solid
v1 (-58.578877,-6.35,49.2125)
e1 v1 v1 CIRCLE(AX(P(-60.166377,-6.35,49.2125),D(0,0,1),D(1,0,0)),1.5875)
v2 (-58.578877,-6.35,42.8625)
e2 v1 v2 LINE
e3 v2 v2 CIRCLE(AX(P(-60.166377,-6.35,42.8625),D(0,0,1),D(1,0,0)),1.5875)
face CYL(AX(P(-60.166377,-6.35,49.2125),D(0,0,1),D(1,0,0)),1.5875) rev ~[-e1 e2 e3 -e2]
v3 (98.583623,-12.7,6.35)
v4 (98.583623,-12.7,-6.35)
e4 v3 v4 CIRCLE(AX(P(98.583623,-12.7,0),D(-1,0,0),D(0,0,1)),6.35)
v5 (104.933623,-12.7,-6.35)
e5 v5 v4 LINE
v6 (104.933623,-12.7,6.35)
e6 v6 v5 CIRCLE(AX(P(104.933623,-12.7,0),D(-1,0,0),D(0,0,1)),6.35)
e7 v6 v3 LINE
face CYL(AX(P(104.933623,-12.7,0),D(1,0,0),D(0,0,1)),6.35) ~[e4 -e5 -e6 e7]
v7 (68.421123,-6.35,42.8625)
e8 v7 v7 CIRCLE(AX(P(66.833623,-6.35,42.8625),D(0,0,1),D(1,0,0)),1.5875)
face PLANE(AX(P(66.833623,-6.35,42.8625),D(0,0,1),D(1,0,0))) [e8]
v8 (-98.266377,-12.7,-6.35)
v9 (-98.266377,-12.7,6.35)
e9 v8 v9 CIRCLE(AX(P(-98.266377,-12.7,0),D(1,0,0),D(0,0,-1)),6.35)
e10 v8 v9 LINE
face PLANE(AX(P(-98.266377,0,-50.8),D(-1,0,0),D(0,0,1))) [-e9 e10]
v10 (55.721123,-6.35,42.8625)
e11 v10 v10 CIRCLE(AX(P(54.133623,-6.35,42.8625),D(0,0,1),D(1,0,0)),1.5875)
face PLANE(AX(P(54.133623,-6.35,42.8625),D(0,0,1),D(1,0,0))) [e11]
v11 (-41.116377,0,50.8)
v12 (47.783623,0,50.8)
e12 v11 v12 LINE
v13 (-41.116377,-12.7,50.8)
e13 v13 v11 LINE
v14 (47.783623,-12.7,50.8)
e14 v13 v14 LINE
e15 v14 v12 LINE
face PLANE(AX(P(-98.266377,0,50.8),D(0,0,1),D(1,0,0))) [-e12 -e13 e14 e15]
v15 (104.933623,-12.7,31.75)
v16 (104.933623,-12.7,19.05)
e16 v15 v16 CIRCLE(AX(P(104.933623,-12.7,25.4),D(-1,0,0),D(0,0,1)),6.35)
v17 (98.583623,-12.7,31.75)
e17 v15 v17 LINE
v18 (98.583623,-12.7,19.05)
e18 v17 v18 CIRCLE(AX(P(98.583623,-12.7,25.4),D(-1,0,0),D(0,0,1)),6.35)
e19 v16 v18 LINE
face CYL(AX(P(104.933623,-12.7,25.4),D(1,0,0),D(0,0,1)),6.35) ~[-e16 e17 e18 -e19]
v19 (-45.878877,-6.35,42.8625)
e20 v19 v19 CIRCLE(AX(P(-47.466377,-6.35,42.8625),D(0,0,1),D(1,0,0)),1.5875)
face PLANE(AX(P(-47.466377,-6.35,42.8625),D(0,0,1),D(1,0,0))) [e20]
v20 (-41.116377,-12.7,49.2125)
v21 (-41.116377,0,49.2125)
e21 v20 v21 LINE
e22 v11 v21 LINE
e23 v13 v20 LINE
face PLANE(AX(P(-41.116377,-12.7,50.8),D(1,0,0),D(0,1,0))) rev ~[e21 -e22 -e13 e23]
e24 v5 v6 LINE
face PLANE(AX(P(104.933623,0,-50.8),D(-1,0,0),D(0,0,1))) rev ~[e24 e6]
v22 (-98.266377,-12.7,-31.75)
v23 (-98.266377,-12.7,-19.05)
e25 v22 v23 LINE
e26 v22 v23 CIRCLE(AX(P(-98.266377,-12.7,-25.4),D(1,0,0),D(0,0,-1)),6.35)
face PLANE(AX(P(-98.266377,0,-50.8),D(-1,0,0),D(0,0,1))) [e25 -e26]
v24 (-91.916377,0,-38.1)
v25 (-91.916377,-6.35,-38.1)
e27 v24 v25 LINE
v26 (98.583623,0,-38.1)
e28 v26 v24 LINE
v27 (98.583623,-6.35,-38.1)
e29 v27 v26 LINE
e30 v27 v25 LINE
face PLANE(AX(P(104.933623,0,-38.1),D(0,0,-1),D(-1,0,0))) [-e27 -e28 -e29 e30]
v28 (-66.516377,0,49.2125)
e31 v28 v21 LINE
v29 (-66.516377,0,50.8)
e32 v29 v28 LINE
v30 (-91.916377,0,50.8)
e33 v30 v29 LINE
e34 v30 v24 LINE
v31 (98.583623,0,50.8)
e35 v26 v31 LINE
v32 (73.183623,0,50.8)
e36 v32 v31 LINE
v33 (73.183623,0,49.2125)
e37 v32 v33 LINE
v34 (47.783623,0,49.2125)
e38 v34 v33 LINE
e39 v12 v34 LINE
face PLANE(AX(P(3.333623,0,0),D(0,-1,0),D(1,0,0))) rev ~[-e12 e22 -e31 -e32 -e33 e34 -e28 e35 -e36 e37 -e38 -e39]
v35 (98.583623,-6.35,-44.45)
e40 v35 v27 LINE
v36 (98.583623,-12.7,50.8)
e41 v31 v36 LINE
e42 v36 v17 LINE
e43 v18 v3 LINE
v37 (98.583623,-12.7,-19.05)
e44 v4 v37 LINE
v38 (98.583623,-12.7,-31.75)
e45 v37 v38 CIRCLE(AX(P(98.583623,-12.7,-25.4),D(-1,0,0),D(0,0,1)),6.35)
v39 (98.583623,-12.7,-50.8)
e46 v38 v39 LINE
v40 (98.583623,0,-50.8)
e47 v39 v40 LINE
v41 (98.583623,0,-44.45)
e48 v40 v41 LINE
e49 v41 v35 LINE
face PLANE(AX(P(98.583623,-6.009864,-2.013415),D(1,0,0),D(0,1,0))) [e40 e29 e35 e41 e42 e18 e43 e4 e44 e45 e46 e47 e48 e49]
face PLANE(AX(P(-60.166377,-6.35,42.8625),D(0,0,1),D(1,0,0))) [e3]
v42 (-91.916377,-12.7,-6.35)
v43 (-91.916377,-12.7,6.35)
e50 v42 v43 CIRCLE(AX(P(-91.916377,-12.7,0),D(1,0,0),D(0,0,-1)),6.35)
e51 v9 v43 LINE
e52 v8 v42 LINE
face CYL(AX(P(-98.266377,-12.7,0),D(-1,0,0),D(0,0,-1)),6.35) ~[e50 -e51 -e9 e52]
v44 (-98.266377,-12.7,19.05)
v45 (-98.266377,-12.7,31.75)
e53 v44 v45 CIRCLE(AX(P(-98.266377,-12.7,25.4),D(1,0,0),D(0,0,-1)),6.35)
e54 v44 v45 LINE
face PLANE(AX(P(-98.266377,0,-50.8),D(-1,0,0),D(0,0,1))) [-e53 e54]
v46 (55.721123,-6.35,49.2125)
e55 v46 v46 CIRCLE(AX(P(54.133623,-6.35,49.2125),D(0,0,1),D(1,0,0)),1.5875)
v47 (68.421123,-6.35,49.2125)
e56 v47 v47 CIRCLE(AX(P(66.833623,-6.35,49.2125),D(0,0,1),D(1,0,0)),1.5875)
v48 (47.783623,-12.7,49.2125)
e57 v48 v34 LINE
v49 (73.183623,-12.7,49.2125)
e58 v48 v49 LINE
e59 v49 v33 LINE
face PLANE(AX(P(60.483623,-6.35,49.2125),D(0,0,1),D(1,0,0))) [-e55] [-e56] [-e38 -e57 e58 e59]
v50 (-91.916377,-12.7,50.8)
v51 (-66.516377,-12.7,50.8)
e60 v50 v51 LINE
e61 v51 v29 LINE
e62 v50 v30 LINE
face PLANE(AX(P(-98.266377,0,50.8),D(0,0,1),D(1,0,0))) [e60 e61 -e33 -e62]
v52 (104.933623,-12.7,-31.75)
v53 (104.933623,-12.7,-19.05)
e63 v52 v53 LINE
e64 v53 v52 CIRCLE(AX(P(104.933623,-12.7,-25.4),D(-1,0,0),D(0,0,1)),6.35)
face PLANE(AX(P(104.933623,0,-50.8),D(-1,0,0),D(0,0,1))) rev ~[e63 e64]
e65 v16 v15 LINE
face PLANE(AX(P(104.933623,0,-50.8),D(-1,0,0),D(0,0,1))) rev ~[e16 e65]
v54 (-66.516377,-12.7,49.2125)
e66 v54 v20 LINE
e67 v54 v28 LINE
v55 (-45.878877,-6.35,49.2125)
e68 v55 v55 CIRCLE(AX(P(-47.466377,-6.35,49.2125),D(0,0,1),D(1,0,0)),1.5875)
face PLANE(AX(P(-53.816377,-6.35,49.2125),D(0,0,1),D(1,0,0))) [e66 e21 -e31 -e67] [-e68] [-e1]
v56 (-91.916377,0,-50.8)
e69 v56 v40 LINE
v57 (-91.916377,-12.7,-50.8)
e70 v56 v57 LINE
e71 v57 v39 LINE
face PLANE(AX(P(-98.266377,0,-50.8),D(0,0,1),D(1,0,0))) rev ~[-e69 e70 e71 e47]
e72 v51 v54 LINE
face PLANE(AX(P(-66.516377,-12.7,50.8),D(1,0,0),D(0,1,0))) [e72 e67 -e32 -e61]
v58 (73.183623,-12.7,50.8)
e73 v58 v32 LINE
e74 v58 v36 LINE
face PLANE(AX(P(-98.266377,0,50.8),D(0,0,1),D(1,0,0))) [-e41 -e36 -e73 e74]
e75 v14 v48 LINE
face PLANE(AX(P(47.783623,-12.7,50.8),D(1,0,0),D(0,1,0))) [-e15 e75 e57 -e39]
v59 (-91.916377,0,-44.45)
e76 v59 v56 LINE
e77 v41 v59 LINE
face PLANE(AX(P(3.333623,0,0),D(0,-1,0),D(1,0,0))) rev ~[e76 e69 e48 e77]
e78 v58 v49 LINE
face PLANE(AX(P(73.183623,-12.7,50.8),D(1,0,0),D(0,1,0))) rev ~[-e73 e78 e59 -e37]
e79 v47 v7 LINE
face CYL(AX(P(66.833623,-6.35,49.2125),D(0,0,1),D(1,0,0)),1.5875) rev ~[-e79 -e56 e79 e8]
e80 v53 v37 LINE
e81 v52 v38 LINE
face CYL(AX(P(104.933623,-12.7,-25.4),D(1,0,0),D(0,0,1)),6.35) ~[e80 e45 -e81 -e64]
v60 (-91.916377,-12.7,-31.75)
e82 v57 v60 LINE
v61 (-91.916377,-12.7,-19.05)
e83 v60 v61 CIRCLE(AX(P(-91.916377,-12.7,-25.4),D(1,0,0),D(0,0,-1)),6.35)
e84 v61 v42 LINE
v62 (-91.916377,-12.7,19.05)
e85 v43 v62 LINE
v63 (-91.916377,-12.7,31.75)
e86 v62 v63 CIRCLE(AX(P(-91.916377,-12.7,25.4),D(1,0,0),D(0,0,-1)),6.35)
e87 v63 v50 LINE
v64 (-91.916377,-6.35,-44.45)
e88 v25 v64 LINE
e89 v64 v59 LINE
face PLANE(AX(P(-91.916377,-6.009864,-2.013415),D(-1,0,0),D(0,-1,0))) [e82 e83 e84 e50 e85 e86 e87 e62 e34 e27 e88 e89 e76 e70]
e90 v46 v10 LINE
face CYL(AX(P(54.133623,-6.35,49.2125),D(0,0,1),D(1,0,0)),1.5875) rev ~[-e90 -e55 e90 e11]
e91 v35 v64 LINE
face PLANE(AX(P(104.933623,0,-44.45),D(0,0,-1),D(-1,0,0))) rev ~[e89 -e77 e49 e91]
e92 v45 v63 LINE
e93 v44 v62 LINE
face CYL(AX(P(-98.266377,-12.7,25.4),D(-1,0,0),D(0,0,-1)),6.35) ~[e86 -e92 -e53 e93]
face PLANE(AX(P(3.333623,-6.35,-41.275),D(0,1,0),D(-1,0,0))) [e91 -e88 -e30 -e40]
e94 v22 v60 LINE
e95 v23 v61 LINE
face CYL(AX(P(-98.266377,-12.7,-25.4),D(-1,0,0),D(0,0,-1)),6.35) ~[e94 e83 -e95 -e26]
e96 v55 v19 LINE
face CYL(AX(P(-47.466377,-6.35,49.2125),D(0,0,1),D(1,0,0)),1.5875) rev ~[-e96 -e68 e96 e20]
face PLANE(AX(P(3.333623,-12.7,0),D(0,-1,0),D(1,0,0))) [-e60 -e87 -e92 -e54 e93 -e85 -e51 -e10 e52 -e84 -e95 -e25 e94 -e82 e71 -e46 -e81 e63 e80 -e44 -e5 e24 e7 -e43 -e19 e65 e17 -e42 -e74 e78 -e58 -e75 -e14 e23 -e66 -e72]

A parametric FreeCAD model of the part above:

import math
import FreeCAD as App
import Part
import Sketcher

V = App.Vector
Q = App.Units.Quantity


def add_polygon(sketch, points):
    """Adds a closed chain of lines whose ends are joined by coincident constraints."""
    first, n = sketch.GeometryCount, len(points)
    for a, b in zip(points, points[1:] + points[:1]):
        sketch.addGeometry(Part.LineSegment(App.Vector(*a, 0), App.Vector(*b, 0)), False)
    for i in range(n):
        sketch.addConstraint(Sketcher.Constraint("Coincident", first + i, 2, first + (i + 1) % n, 1))

doc = App.newDocument("Part")
params = doc.addObject("Spreadsheet::Sheet", "Params")
for row, (alias, value) in enumerate([
    ("sketch1_width", "8 in"),
    ("sketch1_height", "4 in"),
    ("pad1_length", "0.5 in"),
    ("sketch2_width", "8 in"),
    ("sketch2_height", "0.25 in"),
    ("pocket1_length", "0.25 in"),
    ("sketch3_radius", "0.25 in"),
    ("sketch3_width", "0.5 in"),
    ("sketch3_height", "3.5 in"),
    ("pocket2_length", "0.25 in"),
    ("sketch4_radius", "0.25 in"),
    ("sketch4_width", "0.5 in"),
    ("sketch4_height", "3.5 in"),
    ("pocket3_length", "0.25 in"),
    ("sketch5_width", "1 in"),
    ("sketch5_height", "0.5 in"),
    ("pocket4_length", "0.0625 in"),
    ("sketch6_diameter", "0.125 in"),
    ("pocket5_length", "0.25 in"),
    ("sketch7_diameter", "0.125 in"),
    ("pocket6_length", "0.25 in"),
], start=1):
    params.set(f"A{row}", alias)
    params.set(f"B{row}", "=" + value)
    params.setAlias(f"B{row}", alias)

body = doc.addObject("PartDesign::Body", "Body")

# Sketch on XZ plane
sketch1 = body.newObject("Sketcher::SketchObject", "Sketch")
sketch1.AttachmentSupport = (doc.getObject("XZ_Plane"), [""])
sketch1.MapMode = "FlatFace"
add_polygon(sketch1, [(-98.266377, 50.8), (-98.266377, -50.8), (104.933623, -50.8), (104.933623, 50.8)])  # lines 0-3
sketch1.addConstraint([
    Sketcher.Constraint("Vertical", 0),
    Sketcher.Constraint("Horizontal", 1),
    Sketcher.Constraint("Vertical", 2),
    Sketcher.Constraint("Horizontal", 3),
    Sketcher.Constraint("DistanceX", 1, 1, 1, 2, Q("8 in")),
    Sketcher.Constraint("DistanceY", 0, 2, 0, 1, Q("4 in")),
    Sketcher.Constraint("DistanceY", 0, 2, -1, 1, Q("2 in")),
    Sketcher.Constraint("DistanceX", 0, 2, -1, 1, Q("98.266377 mm")),
])
sketch1.setExpression("Constraints[8]", "Params.sketch1_width")
sketch1.setExpression("Constraints[9]", "Params.sketch1_height")
pad1 = body.newObject("PartDesign::Pad", "Pad")
pad1.Profile = sketch1
pad1.setExpression("Length", "Params.pad1_length")

# Sketch on XZ plane
sketch2 = body.newObject("Sketcher::SketchObject", "Sketch001")
sketch2.AttachmentSupport = (doc.getObject("XZ_Plane"), [""])
sketch2.MapMode = "FlatFace"
add_polygon(sketch2, [(104.933623, -38.1), (104.933623, -44.45), (-98.266377, -44.45), (-98.266377, -38.1)])  # lines 0-3
sketch2.addConstraint([
    Sketcher.Constraint("Vertical", 0),
    Sketcher.Constraint("Horizontal", 1),
    Sketcher.Constraint("Vertical", 2),
    Sketcher.Constraint("Horizontal", 3),
    Sketcher.Constraint("DistanceX", 1, 2, 1, 1, Q("8 in")),
    Sketcher.Constraint("DistanceY", 0, 2, 0, 1, Q("0.25 in")),
    Sketcher.Constraint("DistanceY", 2, 2, -1, 1, Q("1.5 in")),
    Sketcher.Constraint("DistanceX", -1, 1, 0, 2, Q("104.933623 mm")),
])
sketch2.setExpression("Constraints[8]", "Params.sketch2_width")
sketch2.setExpression("Constraints[9]", "Params.sketch2_height")
pocket1 = body.newObject("PartDesign::Pocket", "Pocket")
pocket1.Profile = sketch2
pocket1.setExpression("Length", "Params.pocket1_length")
pocket1.Reversed = True

# Sketch on YZ plane
sketch3 = body.newObject("Sketcher::SketchObject", "Sketch002")
sketch3.AttachmentSupport = (doc.getObject("YZ_Plane"), [""])
sketch3.MapMode = "FlatFace"
sketch3.AttachmentOffset = App.Placement(V(0, 0, -98.266377), App.Rotation())
sketch3.addGeometry([
    Part.ArcOfCircle(Part.Circle(V(-12.7, 25.4, 0), V(0, 0, 1), 6.35), math.radians(-90), math.radians(90)),  # 0
    Part.LineSegment(V(-12.7, 31.75, 0), V(-12.7, 50.8, 0)),  # 1
    Part.LineSegment(V(-12.7, 50.8, 0), V(0, 50.8, 0)),  # 2
    Part.LineSegment(V(0, 50.8, 0), V(0, -38.1, 0)),  # 3
    Part.LineSegment(V(0, -38.1, 0), V(-6.35, -38.1, 0)),  # 4
    Part.LineSegment(V(-6.35, -38.1, 0), V(-6.35, -44.45, 0)),  # 5
    Part.LineSegment(V(-6.35, -44.45, 0), V(0, -44.45, 0)),  # 6
    Part.LineSegment(V(0, -44.45, 0), V(0, -50.8, 0)),  # 7
    Part.LineSegment(V(0, -50.8, 0), V(-12.7, -50.8, 0)),  # 8
    Part.LineSegment(V(-12.7, -50.8, 0), V(-12.7, -31.75, 0)),  # 9
    Part.ArcOfCircle(Part.Circle(V(-12.7, -25.4, 0), V(0, 0, 1), 6.35), math.radians(-90), math.radians(90)),  # 10
    Part.LineSegment(V(-12.7, -19.05, 0), V(-12.7, -6.35, 0)),  # 11
    Part.ArcOfCircle(Part.Circle(V(-12.7, 0, 0), V(0, 0, 1), 6.35), math.radians(-90), math.radians(90)),  # 12
    Part.LineSegment(V(-12.7, 6.35, 0), V(-12.7, 19.05, 0)),  # 13
], False)
sketch3.addConstraint([
    Sketcher.Constraint("Coincident", 0, 2, 1, 1),
    Sketcher.Constraint("Coincident", 1, 2, 2, 1),
    Sketcher.Constraint("Coincident", 2, 2, 3, 1),
    Sketcher.Constraint("Coincident", 3, 2, 4, 1),
    Sketcher.Constraint("Coincident", 4, 2, 5, 1),
    Sketcher.Constraint("Coincident", 5, 2, 6, 1),
    Sketcher.Constraint("Coincident", 6, 2, 7, 1),
    Sketcher.Constraint("Coincident", 7, 2, 8, 1),
    Sketcher.Constraint("Coincident", 8, 2, 9, 1),
    Sketcher.Constraint("Coincident", 9, 2, 10, 1),
    Sketcher.Constraint("Coincident", 10, 2, 11, 1),
    Sketcher.Constraint("Coincident", 11, 2, 12, 1),
    Sketcher.Constraint("Coincident", 12, 2, 13, 1),
    Sketcher.Constraint("Coincident", 13, 2, 0, 1),
    Sketcher.Constraint("Vertical", 1),
    Sketcher.Constraint("Horizontal", 2),
    Sketcher.Constraint("Vertical", 3),
    Sketcher.Constraint("Horizontal", 4),
    Sketcher.Constraint("Vertical", 5),
    Sketcher.Constraint("Horizontal", 6),
    Sketcher.Constraint("Vertical", 7),
    Sketcher.Constraint("Horizontal", 8),
    Sketcher.Constraint("Vertical", 9),
    Sketcher.Constraint("Vertical", 11),
    Sketcher.Constraint("Vertical", 13),
    Sketcher.Constraint("Equal", 0, 10),
    Sketcher.Constraint("Equal", 10, 12),
    Sketcher.Constraint("Symmetric", 2, 2, 7, 2, -1, 1),
    Sketcher.Constraint("Symmetric", 0, 3, 10, 3, -1),
    Sketcher.Constraint("Symmetric", 11, 2, 12, 2, -1),
    Sketcher.Constraint("PointOnObject", 2, 2, -2),
    Sketcher.Constraint("Vertical", 10, 3, 12, 3),
    Sketcher.Constraint("Vertical", 12, 3, 0, 2),
    Sketcher.Constraint("Vertical", 1, 2, 8, 2),
    Sketcher.Constraint("Vertical", 9, 2, 10, 2),
    Sketcher.Constraint("Equal", 6, 5),
    Sketcher.Constraint("Equal", 5, 7),
    Sketcher.Constraint("Equal", 8, 11),
    Sketcher.Constraint("Radius", 0, Q("0.25 in")),
    Sketcher.Constraint("DistanceX", 2, 1, 2, 2, Q("0.5 in")),
    Sketcher.Constraint("DistanceY", 3, 2, 3, 1, Q("3.5 in")),
    Sketcher.Constraint("DistanceY", -1, 1, 1, 2, Q("2 in")),
])
sketch3.setExpression("Constraints[38]", "Params.sketch3_radius")
sketch3.setExpression("Constraints[39]", "Params.sketch3_width")
sketch3.setExpression("Constraints[40]", "Params.sketch3_height")
pocket2 = body.newObject("PartDesign::Pocket", "Pocket001")
pocket2.Profile = sketch3
pocket2.setExpression("Length", "Params.pocket2_length")
pocket2.Reversed = True

# Sketch on YZ plane
sketch4 = body.newObject("Sketcher::SketchObject", "Sketch003")
sketch4.AttachmentSupport = (doc.getObject("YZ_Plane"), [""])
sketch4.MapMode = "FlatFace"
sketch4.AttachmentOffset = App.Placement(V(0, 0, 104.933623), App.Rotation())
sketch4.addGeometry([
    Part.ArcOfCircle(Part.Circle(V(-12.7, 25.4, 0), V(0, 0, 1), 6.35), math.radians(-90), math.radians(90)),  # 0
    Part.LineSegment(V(-12.7, 19.05, 0), V(-12.7, 6.35, 0)),  # 1
    Part.ArcOfCircle(Part.Circle(V(-12.7, 0, 0), V(0, 0, 1), 6.35), math.radians(-90), math.radians(90)),  # 2
    Part.LineSegment(V(-12.7, -6.35, 0), V(-12.7, -19.05, 0)),  # 3
    Part.ArcOfCircle(Part.Circle(V(-12.7, -25.4, 0), V(0, 0, 1), 6.35), math.radians(-90), math.radians(90)),  # 4
    Part.LineSegment(V(-12.7, -31.75, 0), V(-12.7, -50.8, 0)),  # 5
    Part.LineSegment(V(-12.7, -50.8, 0), V(0, -50.8, 0)),  # 6
    Part.LineSegment(V(0, -50.8, 0), V(0, -44.45, 0)),  # 7
    Part.LineSegment(V(0, -44.45, 0), V(-6.35, -44.45, 0)),  # 8
    Part.LineSegment(V(-6.35, -44.45, 0), V(-6.35, -38.1, 0)),  # 9
    Part.LineSegment(V(-6.35, -38.1, 0), V(0, -38.1, 0)),  # 10
    Part.LineSegment(V(0, -38.1, 0), V(0, 50.8, 0)),  # 11
    Part.LineSegment(V(0, 50.8, 0), V(-12.7, 50.8, 0)),  # 12
    Part.LineSegment(V(-12.7, 50.8, 0), V(-12.7, 31.75, 0)),  # 13
], False)
sketch4.addConstraint([
    Sketcher.Constraint("Coincident", 0, 1, 1, 1),
    Sketcher.Constraint("Coincident", 1, 2, 2, 2),
    Sketcher.Constraint("Coincident", 2, 1, 3, 1),
    Sketcher.Constraint("Coincident", 3, 2, 4, 2),
    Sketcher.Constraint("Coincident", 4, 1, 5, 1),
    Sketcher.Constraint("Coincident", 5, 2, 6, 1),
    Sketcher.Constraint("Coincident", 6, 2, 7, 1),
    Sketcher.Constraint("Coincident", 7, 2, 8, 1),
    Sketcher.Constraint("Coincident", 8, 2, 9, 1),
    Sketcher.Constraint("Coincident", 9, 2, 10, 1),
    Sketcher.Constraint("Coincident", 10, 2, 11, 1),
    Sketcher.Constraint("Coincident", 11, 2, 12, 1),
    Sketcher.Constraint("Coincident", 12, 2, 13, 1),
    Sketcher.Constraint("Coincident", 13, 2, 0, 2),
    Sketcher.Constraint("Vertical", 1),
    Sketcher.Constraint("Vertical", 3),
    Sketcher.Constraint("Vertical", 5),
    Sketcher.Constraint("Horizontal", 6),
    Sketcher.Constraint("Vertical", 7),
    Sketcher.Constraint("Horizontal", 8),
    Sketcher.Constraint("Vertical", 9),
    Sketcher.Constraint("Horizontal", 10),
    Sketcher.Constraint("Vertical", 11),
    Sketcher.Constraint("Horizontal", 12),
    Sketcher.Constraint("Vertical", 13),
    Sketcher.Constraint("Equal", 0, 2),
    Sketcher.Constraint("Equal", 2, 4),
    Sketcher.Constraint("Symmetric", 6, 2, 11, 2, -1, 1),
    Sketcher.Constraint("Symmetric", 0, 3, 4, 3, -1),
    Sketcher.Constraint("Symmetric", 1, 2, 2, 1, -1),
    Sketcher.Constraint("PointOnObject", 6, 2, -2),
    Sketcher.Constraint("Vertical", 0, 3, 2, 3),
    Sketcher.Constraint("Vertical", 4, 3, 0, 1),
    Sketcher.Constraint("Vertical", 3, 2, 4, 1),
    Sketcher.Constraint("Vertical", 5, 2, 12, 2),
    Sketcher.Constraint("Equal", 12, 1),
    Sketcher.Constraint("Equal", 10, 7),
    Sketcher.Constraint("Equal", 7, 9),
    Sketcher.Constraint("Radius", 0, Q("0.25 in")),
    Sketcher.Constraint("DistanceX", 6, 1, 6, 2, Q("0.5 in")),
    Sketcher.Constraint("DistanceY", 11, 1, 11, 2, Q("3.5 in")),
    Sketcher.Constraint("DistanceY", 5, 2, -1, 1, Q("2 in")),
])
sketch4.setExpression("Constraints[38]", "Params.sketch4_radius")
sketch4.setExpression("Constraints[39]", "Params.sketch4_width")
sketch4.setExpression("Constraints[40]", "Params.sketch4_height")
pocket3 = body.newObject("PartDesign::Pocket", "Pocket002")
pocket3.Profile = sketch4
pocket3.setExpression("Length", "Params.pocket3_length")

# Sketch on XY plane
sketch5 = body.newObject("Sketcher::SketchObject", "Sketch004")
sketch5.AttachmentSupport = (doc.getObject("XY_Plane"), [""])
sketch5.MapMode = "FlatFace"
sketch5.AttachmentOffset = App.Placement(V(0, 0, 2 * 25.4), App.Rotation())
add_polygon(sketch5, [(-66.516377, 0), (-66.516377, -12.7), (-41.116377, -12.7), (-41.116377, 0)])  # lines 0-3
add_polygon(sketch5, [(47.783623, 0), (47.783623, -12.7), (73.183623, -12.7), (73.183623, 0)])  # lines 4-7
sketch5.addConstraint([
    Sketcher.Constraint("Vertical", 0),
    Sketcher.Constraint("Horizontal", 1),
    Sketcher.Constraint("Vertical", 2),
    Sketcher.Constraint("Horizontal", 3),
    Sketcher.Constraint("Vertical", 4),
    Sketcher.Constraint("Horizontal", 5),
    Sketcher.Constraint("Vertical", 6),
    Sketcher.Constraint("Horizontal", 7),
    Sketcher.Constraint("PointOnObject", 2, 2, -1),
    Sketcher.Constraint("PointOnObject", 6, 2, -1),
    Sketcher.Constraint("Horizontal", 1, 2, 4, 2),
    Sketcher.Constraint("Equal", 3, 5),
    Sketcher.Constraint("DistanceX", 1, 1, 1, 2, Q("1 in")),
    Sketcher.Constraint("DistanceY", 0, 2, 0, 1, Q("0.5 in")),
    Sketcher.Constraint("DistanceX", 1, 2, 4, 2, Q("3.5 in")),
    Sketcher.Constraint("DistanceX", 0, 2, -1, 1, Q("66.516377 mm")),
])
sketch5.setExpression("Constraints[20]", "Params.sketch5_width")
sketch5.setExpression("Constraints[21]", "Params.sketch5_height")
pocket4 = body.newObject("PartDesign::Pocket", "Pocket003")
pocket4.Profile = sketch5
pocket4.setExpression("Length", "Params.pocket4_length")

# Sketch on XY plane
sketch6 = body.newObject("Sketcher::SketchObject", "Sketch005")
sketch6.AttachmentSupport = (doc.getObject("XY_Plane"), [""])
sketch6.MapMode = "FlatFace"
sketch6.AttachmentOffset = App.Placement(V(0, 0, 1.9375 * 25.4), App.Rotation())
sketch6.addGeometry([
    Part.Circle(V(-60.166377, -6.35, 0), V(0, 0, 1), 1.5875),
    Part.Circle(V(-47.466377, -6.35, 0), V(0, 0, 1), 1.5875),
], False)
sketch6.addConstraint([
    Sketcher.Constraint("Equal", 0, 1),
    Sketcher.Constraint("Horizontal", 0, 3, 1, 3),
    Sketcher.Constraint("Diameter", 0, Q("0.125 in")),
    Sketcher.Constraint("DistanceX", 0, 3, 1, 3, Q("0.5 in")),
    Sketcher.Constraint("DistanceY", 0, 3, -1, 1, Q("0.25 in")),
    Sketcher.Constraint("DistanceX", 0, 3, -1, 1, Q("60.166377 mm")),
])
sketch6.setExpression("Constraints[2]", "Params.sketch6_diameter")
pocket5 = body.newObject("PartDesign::Pocket", "Pocket004")
pocket5.Profile = sketch6
pocket5.setExpression("Length", "Params.pocket5_length")

# Sketch on XY plane
sketch7 = body.newObject("Sketcher::SketchObject", "Sketch006")
sketch7.AttachmentSupport = (doc.getObject("XY_Plane"), [""])
sketch7.MapMode = "FlatFace"
sketch7.AttachmentOffset = App.Placement(V(0, 0, 1.9375 * 25.4), App.Rotation())
sketch7.addGeometry([
    Part.Circle(V(54.133623, -6.35, 0), V(0, 0, 1), 1.5875),
    Part.Circle(V(66.833623, -6.35, 0), V(0, 0, 1), 1.5875),
], False)
sketch7.addConstraint([
    Sketcher.Constraint("Equal", 0, 1),
    Sketcher.Constraint("Horizontal", 0, 3, 1, 3),
    Sketcher.Constraint("Diameter", 0, Q("0.125 in")),
    Sketcher.Constraint("DistanceX", 0, 3, 1, 3, Q("0.5 in")),
    Sketcher.Constraint("DistanceY", 0, 3, -1, 1, Q("0.25 in")),
    Sketcher.Constraint("DistanceX", -1, 1, 0, 3, Q("54.133623 mm")),
])
sketch7.setExpression("Constraints[2]", "Params.sketch7_diameter")
pocket6 = body.newObject("PartDesign::Pocket", "Pocket005")
pocket6.Profile = sketch7
pocket6.setExpression("Length", "Params.pocket6_length")

doc.recompute()
